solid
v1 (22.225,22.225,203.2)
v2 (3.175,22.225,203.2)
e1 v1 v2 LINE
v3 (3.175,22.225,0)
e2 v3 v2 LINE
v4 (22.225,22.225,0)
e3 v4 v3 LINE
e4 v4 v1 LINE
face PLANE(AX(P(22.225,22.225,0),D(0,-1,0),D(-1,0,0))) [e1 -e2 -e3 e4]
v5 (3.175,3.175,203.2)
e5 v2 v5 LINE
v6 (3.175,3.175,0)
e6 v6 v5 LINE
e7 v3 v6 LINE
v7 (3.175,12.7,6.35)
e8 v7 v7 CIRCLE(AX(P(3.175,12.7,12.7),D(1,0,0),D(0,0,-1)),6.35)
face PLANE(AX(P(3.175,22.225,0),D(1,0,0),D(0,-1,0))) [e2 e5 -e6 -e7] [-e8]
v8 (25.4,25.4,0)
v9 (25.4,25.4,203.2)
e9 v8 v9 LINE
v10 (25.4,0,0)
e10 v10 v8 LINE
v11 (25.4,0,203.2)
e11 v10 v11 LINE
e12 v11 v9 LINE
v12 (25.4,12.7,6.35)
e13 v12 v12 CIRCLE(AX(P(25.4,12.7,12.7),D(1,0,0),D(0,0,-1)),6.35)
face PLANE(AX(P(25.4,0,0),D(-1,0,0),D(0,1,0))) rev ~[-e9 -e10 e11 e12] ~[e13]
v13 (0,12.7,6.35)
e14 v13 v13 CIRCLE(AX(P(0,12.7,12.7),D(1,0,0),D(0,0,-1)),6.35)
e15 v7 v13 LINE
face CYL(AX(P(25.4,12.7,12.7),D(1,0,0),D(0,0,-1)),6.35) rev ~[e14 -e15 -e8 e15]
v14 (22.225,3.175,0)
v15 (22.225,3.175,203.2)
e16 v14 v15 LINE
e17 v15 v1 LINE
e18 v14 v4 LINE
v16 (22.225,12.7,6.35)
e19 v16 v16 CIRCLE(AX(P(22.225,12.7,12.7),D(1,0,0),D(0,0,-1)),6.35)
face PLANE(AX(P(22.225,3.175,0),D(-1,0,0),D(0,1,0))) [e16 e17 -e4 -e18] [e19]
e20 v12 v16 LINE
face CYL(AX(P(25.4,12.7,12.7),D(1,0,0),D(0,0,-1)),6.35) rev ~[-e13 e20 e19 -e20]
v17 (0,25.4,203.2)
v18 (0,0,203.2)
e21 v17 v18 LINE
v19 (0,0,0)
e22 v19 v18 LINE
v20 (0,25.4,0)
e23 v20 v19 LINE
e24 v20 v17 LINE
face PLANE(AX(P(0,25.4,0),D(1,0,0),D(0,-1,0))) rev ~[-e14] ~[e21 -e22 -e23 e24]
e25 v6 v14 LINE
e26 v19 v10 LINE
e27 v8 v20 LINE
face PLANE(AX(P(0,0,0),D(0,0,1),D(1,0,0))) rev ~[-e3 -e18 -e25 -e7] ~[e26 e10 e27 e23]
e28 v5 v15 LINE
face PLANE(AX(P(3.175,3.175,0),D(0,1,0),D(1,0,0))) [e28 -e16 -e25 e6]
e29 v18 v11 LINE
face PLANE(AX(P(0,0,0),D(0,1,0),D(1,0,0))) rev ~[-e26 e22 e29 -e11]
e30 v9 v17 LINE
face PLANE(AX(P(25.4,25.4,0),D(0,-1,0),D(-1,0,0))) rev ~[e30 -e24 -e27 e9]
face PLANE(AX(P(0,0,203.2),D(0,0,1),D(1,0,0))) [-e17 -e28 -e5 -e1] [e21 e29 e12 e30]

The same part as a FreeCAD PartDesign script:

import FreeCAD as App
import Part
import Sketcher
from FreeCAD import Vector
Q = App.Units.Quantity


def add_polygon(sketch, points):
    """Adds a closed chain of lines whose ends are joined by coincident constraints."""
    first, n = sketch.GeometryCount, len(points)
    for a, b in zip(points, points[1:] + points[:1]):
        sketch.addGeometry(Part.LineSegment(App.Vector(*a, 0), App.Vector(*b, 0)), False)
    for i in range(n):
        sketch.addConstraint(Sketcher.Constraint("Coincident", first + i, 2, first + (i + 1) % n, 1))

doc = App.newDocument("Part")
body = doc.addObject("PartDesign::Body", "Body")

sketch1 = body.newObject("Sketcher::SketchObject", "Sketch")
sketch1.AttachmentSupport = (doc.getObject("XY_Plane"), [""])
sketch1.MapMode = "FlatFace"
add_polygon(sketch1, [(0, 25), (0, 0), (25, 0), (25, 25)])
add_polygon(sketch1, [(22, 3), (3, 3), (3, 22), (22, 22)])
sketch1.addConstraint([
    Sketcher.Constraint("Vertical", 0),
    Sketcher.Constraint("Horizontal", 1),
    Sketcher.Constraint("Vertical", 2),
    Sketcher.Constraint("Horizontal", 3),
    Sketcher.Constraint("Horizontal", 4),
    Sketcher.Constraint("Vertical", 5),
    Sketcher.Constraint("Horizontal", 6),
    Sketcher.Constraint("Vertical", 7),
    Sketcher.Constraint("Coincident", 0, 2, -1, 1),
    Sketcher.Constraint("Equal", 3, 0),
    Sketcher.Constraint("Equal", 6, 5),
    Sketcher.Constraint("DistanceX", 1, 1, 1, 2, Q("1 in")),
    Sketcher.Constraint("DistanceX", -1, 1, 4, 2, Q("0.125 in")),
    Sketcher.Constraint("DistanceY", -1, 1, 4, 2, Q("0.125 in")),
    Sketcher.Constraint("DistanceY", 5, 2, 3, 2, Q("0.125 in")),
])
pad1 = body.newObject("PartDesign::Pad", "Pad")
pad1.Profile = sketch1
pad1.Length = Q("8 in")

sketch2 = body.newObject("Sketcher::SketchObject", "Sketch001")
sketch2.AttachmentSupport = (doc.getObject("YZ_Plane"), [""])
sketch2.MapMode = "FlatFace"
sketch2.AttachmentOffset = App.Placement(Vector(0, 0, 1 * 25.4), App.Rotation())
sketch2.addGeometry(Part.Circle(Vector(13, 13, 0), Vector(0, 0, 1), 6), False)
sketch2.addConstraint([
    Sketcher.Constraint("Diameter", 0, Q("0.5 in")),
    Sketcher.Constraint("DistanceX", -1, 1, 0, 3, Q("0.5 in")),
    Sketcher.Constraint("DistanceY", -1, 1, 0, 3, Q("0.5 in")),
])
pocket1 = body.newObject("PartDesign::Pocket", "Pocket")
pocket1.Profile = sketch2
pocket1.Length = Q("8 in")

doc.recompute()
